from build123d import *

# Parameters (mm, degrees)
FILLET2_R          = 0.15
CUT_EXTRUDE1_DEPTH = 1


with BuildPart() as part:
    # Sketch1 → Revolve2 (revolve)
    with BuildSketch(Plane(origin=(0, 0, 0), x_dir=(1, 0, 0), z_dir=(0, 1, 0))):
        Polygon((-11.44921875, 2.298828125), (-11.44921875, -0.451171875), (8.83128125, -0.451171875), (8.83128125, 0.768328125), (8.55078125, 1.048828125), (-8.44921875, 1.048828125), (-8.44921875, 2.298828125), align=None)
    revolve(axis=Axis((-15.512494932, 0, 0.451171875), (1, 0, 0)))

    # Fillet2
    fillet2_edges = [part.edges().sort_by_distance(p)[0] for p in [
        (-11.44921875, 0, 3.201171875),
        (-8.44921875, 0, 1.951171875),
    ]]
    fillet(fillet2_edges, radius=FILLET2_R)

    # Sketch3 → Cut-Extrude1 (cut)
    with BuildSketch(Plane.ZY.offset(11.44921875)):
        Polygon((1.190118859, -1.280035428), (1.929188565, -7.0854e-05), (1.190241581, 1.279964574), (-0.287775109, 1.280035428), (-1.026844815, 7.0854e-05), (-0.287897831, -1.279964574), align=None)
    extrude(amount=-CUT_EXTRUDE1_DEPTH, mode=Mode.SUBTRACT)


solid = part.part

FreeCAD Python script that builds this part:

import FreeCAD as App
import Part
import Sketcher
Q = App.Units.Quantity


def edges_at(feature, points):
    """Names of the edges that pass closest to the given points."""
    edges = feature.Shape.Edges
    near = lambda p: min(range(len(edges)), key=lambda i: edges[i].distToShape(Part.Vertex(*p))[0])
    return sorted({f"Edge{near(p) + 1}" for p in points})


def add_polygon(sketch, points):
    """Adds a closed chain of lines whose ends are joined by coincident constraints."""
    first, n = sketch.GeometryCount, len(points)
    for a, b in zip(points, points[1:] + points[:1]):
        sketch.addGeometry(Part.LineSegment(App.Vector(*a, 0), App.Vector(*b, 0)), False)
    for i in range(n):
        sketch.addConstraint(Sketcher.Constraint("Coincident", first + i, 2, first + (i + 1) % n, 1))

doc = App.newDocument("Part")
body = doc.addObject("PartDesign::Body", "Body")

# Sketch on XZ plane
sketch1 = body.newObject("Sketcher::SketchObject", "Sketch")
sketch1.AttachmentSupport = (doc.getObject("XZ_Plane"), [""])
sketch1.MapMode = "FlatFace"
add_polygon(sketch1, [(-11.45, -2.3), (-11.45, 0.45), (8.83, 0.45), (8.83, -0.77), (8.55, -1.05), (-8.45, -1.05), (-8.45, -2.3)])  # lines 0-6
sketch1.addGeometry(Part.LineSegment(App.Vector(-11.45, 0.45, 0), App.Vector(8.83, 0.45, 0)), True)  # axis
sketch1.addConstraint(Sketcher.Constraint("Vertical", 0))
sketch1.addConstraint(Sketcher.Constraint("Horizontal", 1))
sketch1.addConstraint(Sketcher.Constraint("Vertical", 2))
sketch1.addConstraint(Sketcher.Constraint("Horizontal", 4))
sketch1.addConstraint(Sketcher.Constraint("Vertical", 5))
sketch1.addConstraint(Sketcher.Constraint("Horizontal", 6))
sketch1.addConstraint(Sketcher.Constraint("Horizontal", 7))
sketch1.addConstraint(Sketcher.Constraint("Coincident", 7, 1, 0, 2))
sketch1.addConstraint(Sketcher.Constraint("Vertical", 2, 2, 7, 2))
sketch1.addConstraint(Sketcher.Constraint("DistanceX", 4, 2, 4, 1, Q("17 mm")))
sketch1.addConstraint(Sketcher.Constraint("DistanceX", 6, 2, 6, 1, Q("3 mm")))
sketch1.addConstraint(Sketcher.Constraint("Angle", 3, Q("-135 deg")))
sketch1.addConstraint(Sketcher.Constraint("DistanceY", 0, 1, 0, 2, Q("2.75 mm")))
sketch1.addConstraint(Sketcher.Constraint("DistanceY", 5, 2, 5, 1, Q("1.25 mm")))
sketch1.addConstraint(Sketcher.Constraint("DistanceX", 1, 1, 1, 2, Q("20.2805 mm")))
sketch1.addConstraint(Sketcher.Constraint("DistanceX", 0, 2, -1, 1, Q("11.449219 mm")))
sketch1.addConstraint(Sketcher.Constraint("DistanceY", -1, 1, 0, 2, Q("0.451172 mm")))
revolution = body.newObject("PartDesign::Revolution", "Revolution")
revolution.Profile = sketch1
revolution.ReferenceAxis = (sketch1, ["Axis0"])
revolution.Angle = 360
doc.recompute()

fillet = body.newObject("PartDesign::Fillet", "Fillet")
fillet.Base = (revolution, edges_at(revolution, [(-11.449, 0, 3.201), (-8.449, 0, 1.951)]))
fillet.Radius = 0.15

# Sketch on YZ plane
sketch2 = body.newObject("Sketcher::SketchObject", "Sketch001")
sketch2.AttachmentSupport = (doc.getObject("YZ_Plane"), [""])
sketch2.MapMode = "FlatFace"
sketch2.AttachmentOffset = App.Placement(App.Vector(0, 0, -11.449219), App.Rotation())
add_polygon(sketch2, [(-1.3, 1.2), (0, 1.9), (1.3, 1.2), (1.3, -0.3), (0, -1), (-1.3, -0.3)])  # lines 0-5
sketch2.addConstraint(Sketcher.Constraint("Parallel", 0, 3))
sketch2.addConstraint(Sketcher.Constraint("Parallel", 1, 4))
sketch2.addConstraint(Sketcher.Constraint("Parallel", 2, 5))
sketch2.addConstraint(Sketcher.Constraint("Equal", 0, 1))
sketch2.addConstraint(Sketcher.Constraint("Equal", 1, 2))
sketch2.addConstraint(Sketcher.Constraint("Equal", 2, 3))
sketch2.addConstraint(Sketcher.Constraint("DistanceX", 4, 2, 2, 2, Q("2.56 mm")))
sketch2.addConstraint(Sketcher.Constraint("DistanceY", -1, 1, 0, 2, Q("1.929189 mm")))
sketch2.addConstraint(Sketcher.Constraint("DistanceY", -1, 1, 1, 2, Q("1.190242 mm")))
sketch2.addConstraint(Sketcher.Constraint("DistanceY", -1, 1, 5, 2, Q("1.190119 mm")))
sketch2.addConstraint(Sketcher.Constraint("DistanceX", 0, 2, 3, 2, Q("0.000142 mm")))
sketch2.addConstraint(Sketcher.Constraint("DistanceX", -1, 1, 1, 2, Q("1.279965 mm")))
pocket1 = body.newObject("PartDesign::Pocket", "Pocket")
pocket1.Profile = sketch2
pocket1.Length = 1
pocket1.Reversed = True

doc.recompute()
